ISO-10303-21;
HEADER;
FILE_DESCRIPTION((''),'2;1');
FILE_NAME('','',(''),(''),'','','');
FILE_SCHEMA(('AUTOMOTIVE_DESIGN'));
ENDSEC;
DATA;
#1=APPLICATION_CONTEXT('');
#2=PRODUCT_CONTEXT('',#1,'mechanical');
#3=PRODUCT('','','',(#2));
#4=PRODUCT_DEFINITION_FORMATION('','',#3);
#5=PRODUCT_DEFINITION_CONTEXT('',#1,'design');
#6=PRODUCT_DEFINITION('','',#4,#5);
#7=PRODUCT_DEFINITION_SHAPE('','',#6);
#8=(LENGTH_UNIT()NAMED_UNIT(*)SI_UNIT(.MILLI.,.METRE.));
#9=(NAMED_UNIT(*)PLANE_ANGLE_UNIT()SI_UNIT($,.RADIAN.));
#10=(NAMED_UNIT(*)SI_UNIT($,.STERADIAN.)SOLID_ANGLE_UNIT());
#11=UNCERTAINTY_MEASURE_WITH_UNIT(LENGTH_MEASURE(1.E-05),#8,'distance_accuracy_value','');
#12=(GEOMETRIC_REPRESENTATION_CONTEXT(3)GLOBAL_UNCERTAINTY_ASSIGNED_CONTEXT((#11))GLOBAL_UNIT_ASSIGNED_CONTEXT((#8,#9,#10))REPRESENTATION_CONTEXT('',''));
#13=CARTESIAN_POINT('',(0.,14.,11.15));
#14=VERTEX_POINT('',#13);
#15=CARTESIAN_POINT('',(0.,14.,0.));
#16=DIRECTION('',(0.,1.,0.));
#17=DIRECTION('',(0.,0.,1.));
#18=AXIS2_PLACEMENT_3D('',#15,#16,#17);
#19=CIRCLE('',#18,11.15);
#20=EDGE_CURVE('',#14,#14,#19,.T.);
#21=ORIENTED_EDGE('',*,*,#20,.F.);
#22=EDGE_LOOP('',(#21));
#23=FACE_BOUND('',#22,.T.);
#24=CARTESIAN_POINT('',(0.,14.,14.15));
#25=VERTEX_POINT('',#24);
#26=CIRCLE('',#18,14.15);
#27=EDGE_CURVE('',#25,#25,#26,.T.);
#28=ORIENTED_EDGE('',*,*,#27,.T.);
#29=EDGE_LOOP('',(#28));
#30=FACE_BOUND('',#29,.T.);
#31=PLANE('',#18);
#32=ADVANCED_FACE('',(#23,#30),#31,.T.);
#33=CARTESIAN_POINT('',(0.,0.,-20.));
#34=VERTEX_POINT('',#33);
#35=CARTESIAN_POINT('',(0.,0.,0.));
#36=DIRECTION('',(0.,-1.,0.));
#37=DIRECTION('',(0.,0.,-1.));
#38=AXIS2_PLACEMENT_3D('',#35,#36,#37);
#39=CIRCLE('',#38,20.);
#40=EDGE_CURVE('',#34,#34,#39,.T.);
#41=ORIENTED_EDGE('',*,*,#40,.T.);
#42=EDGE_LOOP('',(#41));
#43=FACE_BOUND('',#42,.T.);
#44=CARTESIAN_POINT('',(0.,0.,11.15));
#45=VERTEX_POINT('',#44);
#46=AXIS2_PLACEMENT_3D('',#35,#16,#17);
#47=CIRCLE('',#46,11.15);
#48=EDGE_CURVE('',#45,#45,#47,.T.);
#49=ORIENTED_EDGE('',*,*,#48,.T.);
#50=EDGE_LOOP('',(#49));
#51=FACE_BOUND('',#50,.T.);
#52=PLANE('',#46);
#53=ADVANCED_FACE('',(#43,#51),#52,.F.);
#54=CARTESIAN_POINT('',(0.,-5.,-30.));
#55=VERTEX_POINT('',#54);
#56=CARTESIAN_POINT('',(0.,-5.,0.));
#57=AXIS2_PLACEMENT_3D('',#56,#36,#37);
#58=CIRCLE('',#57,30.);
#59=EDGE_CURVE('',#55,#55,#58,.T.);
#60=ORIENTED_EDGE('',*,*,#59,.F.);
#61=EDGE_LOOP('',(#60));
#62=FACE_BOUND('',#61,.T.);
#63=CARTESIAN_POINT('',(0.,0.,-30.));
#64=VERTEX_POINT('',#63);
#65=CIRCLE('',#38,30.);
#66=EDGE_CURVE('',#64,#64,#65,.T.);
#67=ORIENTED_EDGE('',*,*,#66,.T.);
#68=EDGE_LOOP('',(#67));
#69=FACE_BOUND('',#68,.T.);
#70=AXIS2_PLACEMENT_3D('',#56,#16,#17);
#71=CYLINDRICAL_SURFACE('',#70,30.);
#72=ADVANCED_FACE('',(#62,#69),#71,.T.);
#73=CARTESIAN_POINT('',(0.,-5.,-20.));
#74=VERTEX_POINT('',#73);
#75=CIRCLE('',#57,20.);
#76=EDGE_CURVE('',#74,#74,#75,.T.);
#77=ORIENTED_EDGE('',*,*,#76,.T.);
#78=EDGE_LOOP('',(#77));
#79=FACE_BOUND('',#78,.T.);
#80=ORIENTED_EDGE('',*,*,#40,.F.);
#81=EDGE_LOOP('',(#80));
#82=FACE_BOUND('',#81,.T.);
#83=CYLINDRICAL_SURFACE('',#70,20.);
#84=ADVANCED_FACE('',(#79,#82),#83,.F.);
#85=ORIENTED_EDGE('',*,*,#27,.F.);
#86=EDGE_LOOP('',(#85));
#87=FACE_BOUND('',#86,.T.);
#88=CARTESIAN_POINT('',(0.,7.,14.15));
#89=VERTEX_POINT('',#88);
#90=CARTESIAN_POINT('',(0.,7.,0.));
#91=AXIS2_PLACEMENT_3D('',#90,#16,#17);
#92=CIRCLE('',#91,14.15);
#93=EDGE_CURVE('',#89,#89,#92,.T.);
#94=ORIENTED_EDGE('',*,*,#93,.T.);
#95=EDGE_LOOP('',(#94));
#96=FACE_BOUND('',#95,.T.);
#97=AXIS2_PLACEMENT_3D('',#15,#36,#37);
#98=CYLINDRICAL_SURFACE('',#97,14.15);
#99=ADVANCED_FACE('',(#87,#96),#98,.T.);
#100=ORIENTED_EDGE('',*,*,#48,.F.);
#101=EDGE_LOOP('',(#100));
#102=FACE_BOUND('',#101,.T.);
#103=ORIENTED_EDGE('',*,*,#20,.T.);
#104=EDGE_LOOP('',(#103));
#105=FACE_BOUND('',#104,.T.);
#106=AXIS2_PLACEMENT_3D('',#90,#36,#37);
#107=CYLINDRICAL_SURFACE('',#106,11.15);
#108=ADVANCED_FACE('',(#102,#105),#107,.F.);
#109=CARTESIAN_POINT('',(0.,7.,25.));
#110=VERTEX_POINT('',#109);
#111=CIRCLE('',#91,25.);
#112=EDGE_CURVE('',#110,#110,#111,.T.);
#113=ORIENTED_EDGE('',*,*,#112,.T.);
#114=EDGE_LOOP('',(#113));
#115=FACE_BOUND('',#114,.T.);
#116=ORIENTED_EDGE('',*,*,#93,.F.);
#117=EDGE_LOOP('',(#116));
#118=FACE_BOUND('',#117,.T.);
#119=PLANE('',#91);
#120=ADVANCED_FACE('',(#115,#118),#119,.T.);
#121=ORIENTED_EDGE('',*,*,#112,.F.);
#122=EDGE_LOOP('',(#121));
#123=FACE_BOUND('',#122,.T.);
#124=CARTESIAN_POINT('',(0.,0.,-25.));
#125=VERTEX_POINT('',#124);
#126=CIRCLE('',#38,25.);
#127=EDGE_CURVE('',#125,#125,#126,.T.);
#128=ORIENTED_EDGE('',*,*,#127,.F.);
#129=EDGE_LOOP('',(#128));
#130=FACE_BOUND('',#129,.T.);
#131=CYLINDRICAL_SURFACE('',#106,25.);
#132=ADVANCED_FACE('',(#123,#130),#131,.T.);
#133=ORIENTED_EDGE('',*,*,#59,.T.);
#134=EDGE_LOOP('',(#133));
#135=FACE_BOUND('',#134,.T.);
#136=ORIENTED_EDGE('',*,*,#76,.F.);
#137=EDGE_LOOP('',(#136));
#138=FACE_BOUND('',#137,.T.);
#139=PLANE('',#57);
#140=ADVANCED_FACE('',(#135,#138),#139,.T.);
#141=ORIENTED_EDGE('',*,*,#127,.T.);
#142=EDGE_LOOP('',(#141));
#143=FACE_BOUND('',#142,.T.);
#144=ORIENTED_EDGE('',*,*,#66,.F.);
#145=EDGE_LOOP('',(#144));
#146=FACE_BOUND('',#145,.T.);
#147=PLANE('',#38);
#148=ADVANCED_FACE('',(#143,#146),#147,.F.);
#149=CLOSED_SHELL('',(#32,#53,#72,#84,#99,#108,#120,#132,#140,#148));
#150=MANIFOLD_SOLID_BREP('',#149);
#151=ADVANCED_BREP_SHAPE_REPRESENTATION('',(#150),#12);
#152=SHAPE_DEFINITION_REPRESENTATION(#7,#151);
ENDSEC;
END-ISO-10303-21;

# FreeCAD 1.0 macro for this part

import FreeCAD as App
import Part
import Sketcher

V = App.Vector
Q = App.Units.Quantity

doc = App.newDocument("Part")
body = doc.addObject("PartDesign::Body", "Body")

# Sketch on XZ plane
sketch1 = body.newObject("Sketcher::SketchObject", "Sketch")
sketch1.AttachmentSupport = (doc.getObject("XZ_Plane"), [""])
sketch1.MapMode = "FlatFace"
sketch1.addGeometry([
    Part.Circle(V(0, 0, 0), V(0, 0, 1), 25),
    Part.Circle(V(0, 0, 0), V(0, 0, 1), 11),
], False)
sketch1.addConstraint([
    Sketcher.Constraint("Coincident", 0, 3, -1, 1),
    Sketcher.Constraint("Coincident", 1, 3, -1, 1),
    Sketcher.Constraint("Diameter", 0, Q("50 mm")),
    Sketcher.Constraint("Diameter", 1, Q("22.3 mm")),
])
pad1 = body.newObject("PartDesign::Pad", "Pad")
pad1.Profile = sketch1
pad1.Length = 7
pad1.Reversed = True

# Sketch on XZ plane
sketch2 = body.newObject("Sketcher::SketchObject", "Sketch001")
sketch2.AttachmentSupport = (doc.getObject("XZ_Plane"), [""])
sketch2.MapMode = "FlatFace"
sketch2.AttachmentOffset = App.Placement(V(0, 0, -7), App.Rotation())
sketch2.addGeometry([
    Part.Circle(V(0, 0, 0), V(0, 0, 1), 14),
    Part.Circle(V(0, 0, 0), V(0, 0, 1), 11),
], False)
sketch2.addConstraint([
    Sketcher.Constraint("Coincident", 0, 3, -1, 1),
    Sketcher.Constraint("Coincident", 1, 3, -1, 1),
    Sketcher.Constraint("Diameter", 0, Q("28.3 mm")),
    Sketcher.Constraint("Diameter", 1, Q("22.3 mm")),
])
pad2 = body.newObject("PartDesign::Pad", "Pad001")
pad2.Profile = sketch2
pad2.Length = 7
pad2.Reversed = True

# Sketch on XZ plane
sketch3 = body.newObject("Sketcher::SketchObject", "Sketch002")
sketch3.AttachmentSupport = (doc.getObject("XZ_Plane"), [""])
sketch3.MapMode = "FlatFace"
sketch3.addGeometry([
    Part.Circle(V(0, 0, 0), V(0, 0, 1), 30),
    Part.Circle(V(0, 0, 0), V(0, 0, 1), 20),
], False)
sketch3.addConstraint([
    Sketcher.Constraint("Coincident", 0, 3, -1, 1),
    Sketcher.Constraint("Coincident", 1, 3, -1, 1),
    Sketcher.Constraint("Diameter", 0, Q("60 mm")),
    Sketcher.Constraint("Diameter", 1, Q("40 mm")),
])
pad3 = body.newObject("PartDesign::Pad", "Pad002")
pad3.Profile = sketch3
pad3.Length = 5

doc.recompute()
